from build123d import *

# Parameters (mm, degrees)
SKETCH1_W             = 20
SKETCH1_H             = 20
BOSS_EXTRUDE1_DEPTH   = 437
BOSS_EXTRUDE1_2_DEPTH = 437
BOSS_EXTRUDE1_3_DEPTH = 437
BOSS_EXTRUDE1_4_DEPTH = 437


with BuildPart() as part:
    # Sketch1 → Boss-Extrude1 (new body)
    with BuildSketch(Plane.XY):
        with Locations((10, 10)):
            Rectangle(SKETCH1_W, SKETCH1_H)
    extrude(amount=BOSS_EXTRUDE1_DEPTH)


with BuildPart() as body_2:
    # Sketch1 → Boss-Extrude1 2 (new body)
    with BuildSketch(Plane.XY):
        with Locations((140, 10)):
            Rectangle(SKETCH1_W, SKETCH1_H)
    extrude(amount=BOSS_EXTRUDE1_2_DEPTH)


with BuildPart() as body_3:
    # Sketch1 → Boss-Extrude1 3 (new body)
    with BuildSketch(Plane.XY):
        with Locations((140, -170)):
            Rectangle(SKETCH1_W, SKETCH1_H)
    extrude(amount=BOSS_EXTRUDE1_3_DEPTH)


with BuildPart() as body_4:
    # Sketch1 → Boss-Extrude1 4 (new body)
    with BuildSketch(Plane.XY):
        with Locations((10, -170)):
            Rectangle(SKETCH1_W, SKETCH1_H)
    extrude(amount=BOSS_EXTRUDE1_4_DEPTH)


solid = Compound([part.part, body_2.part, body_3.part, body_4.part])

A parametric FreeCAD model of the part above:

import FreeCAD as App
import Part
import Sketcher

V = App.Vector

doc = App.newDocument("Part")
body = doc.addObject("PartDesign::Body", "Body")

# Sketch on XY plane
sketch1 = body.newObject("Sketcher::SketchObject", "Sketch")
sketch1.AttachmentSupport = (doc.getObject("XY_Plane"), [""])
sketch1.MapMode = "FlatFace"
sketch1.addGeometry(Part.LineSegment(V(0, 20, 0), V(0, 0, 0)), False)
sketch1.addGeometry(Part.LineSegment(V(0, 0, 0), V(20, 0, 0)), False)
sketch1.addGeometry(Part.LineSegment(V(20, 0, 0), V(20, 20, 0)), False)
sketch1.addGeometry(Part.LineSegment(V(20, 20, 0), V(0, 20, 0)), False)
sketch1.addConstraint(Sketcher.Constraint("Coincident", 0, 2, 1, 1))
sketch1.addConstraint(Sketcher.Constraint("Coincident", 1, 2, 2, 1))
sketch1.addConstraint(Sketcher.Constraint("Coincident", 2, 2, 3, 1))
sketch1.addConstraint(Sketcher.Constraint("Coincident", 3, 2, 0, 1))
sketch1.addConstraint(Sketcher.Constraint("Vertical", 0))
sketch1.addConstraint(Sketcher.Constraint("Horizontal", 1))
sketch1.addConstraint(Sketcher.Constraint("Vertical", 2))
sketch1.addConstraint(Sketcher.Constraint("Horizontal", 3))
sketch1.addConstraint(Sketcher.Constraint("Coincident", 0, 2, -1, 1))
sketch1.addConstraint(Sketcher.Constraint("Equal", 3, 0))
sketch1.addConstraint(Sketcher.Constraint("DistanceX", 1, 1, 1, 2, 20.0))
pad1 = body.newObject("PartDesign::Pad", "Pad")
pad1.Profile = sketch1
pad1.Length = 437
body2 = doc.addObject("PartDesign::Body", "Body001")

# Sketch on XY plane
sketch2 = body2.newObject("Sketcher::SketchObject", "Sketch001")
sketch2.AttachmentSupport = (doc.getObject("XY_Plane001"), [""])
sketch2.MapMode = "FlatFace"
sketch2.addGeometry(Part.LineSegment(V(130, 20, 0), V(130, 0, 0)), False)
sketch2.addGeometry(Part.LineSegment(V(130, 0, 0), V(150, 0, 0)), False)
sketch2.addGeometry(Part.LineSegment(V(150, 0, 0), V(150, 20, 0)), False)
sketch2.addGeometry(Part.LineSegment(V(150, 20, 0), V(130, 20, 0)), False)
sketch2.addConstraint(Sketcher.Constraint("Coincident", 0, 2, 1, 1))
sketch2.addConstraint(Sketcher.Constraint("Coincident", 1, 2, 2, 1))
sketch2.addConstraint(Sketcher.Constraint("Coincident", 2, 2, 3, 1))
sketch2.addConstraint(Sketcher.Constraint("Coincident", 3, 2, 0, 1))
sketch2.addConstraint(Sketcher.Constraint("Vertical", 0))
sketch2.addConstraint(Sketcher.Constraint("Horizontal", 1))
sketch2.addConstraint(Sketcher.Constraint("Vertical", 2))
sketch2.addConstraint(Sketcher.Constraint("Horizontal", 3))
sketch2.addConstraint(Sketcher.Constraint("PointOnObject", 0, 2, -1))
sketch2.addConstraint(Sketcher.Constraint("Equal", 3, 0))
sketch2.addConstraint(Sketcher.Constraint("DistanceX", 1, 1, 1, 2, 20.0))
sketch2.addConstraint(Sketcher.Constraint("DistanceX", -1, 1, 0, 2, 130.0))
pad2 = body2.newObject("PartDesign::Pad", "Pad001")
pad2.Profile = sketch2
pad2.Length = 437
body3 = doc.addObject("PartDesign::Body", "Body002")

# Sketch on XY plane
sketch3 = body3.newObject("Sketcher::SketchObject", "Sketch002")
sketch3.AttachmentSupport = (doc.getObject("XY_Plane002"), [""])
sketch3.MapMode = "FlatFace"
sketch3.addGeometry(Part.LineSegment(V(130, -160, 0), V(130, -180, 0)), False)
sketch3.addGeometry(Part.LineSegment(V(130, -180, 0), V(150, -180, 0)), False)
sketch3.addGeometry(Part.LineSegment(V(150, -180, 0), V(150, -160, 0)), False)
sketch3.addGeometry(Part.LineSegment(V(150, -160, 0), V(130, -160, 0)), False)
sketch3.addConstraint(Sketcher.Constraint("Coincident", 0, 2, 1, 1))
sketch3.addConstraint(Sketcher.Constraint("Coincident", 1, 2, 2, 1))
sketch3.addConstraint(Sketcher.Constraint("Coincident", 2, 2, 3, 1))
sketch3.addConstraint(Sketcher.Constraint("Coincident", 3, 2, 0, 1))
sketch3.addConstraint(Sketcher.Constraint("Vertical", 0))
sketch3.addConstraint(Sketcher.Constraint("Horizontal", 1))
sketch3.addConstraint(Sketcher.Constraint("Vertical", 2))
sketch3.addConstraint(Sketcher.Constraint("Horizontal", 3))
sketch3.addConstraint(Sketcher.Constraint("Equal", 3, 0))
sketch3.addConstraint(Sketcher.Constraint("DistanceX", 1, 1, 1, 2, 20.0))
sketch3.addConstraint(Sketcher.Constraint("DistanceX", -1, 1, 0, 2, 130.0))
sketch3.addConstraint(Sketcher.Constraint("DistanceY", 0, 2, -1, 1, 180.0))
pad3 = body3.newObject("PartDesign::Pad", "Pad002")
pad3.Profile = sketch3
pad3.Length = 437
body4 = doc.addObject("PartDesign::Body", "Body003")

# Sketch on XY plane
sketch4 = body4.newObject("Sketcher::SketchObject", "Sketch003")
sketch4.AttachmentSupport = (doc.getObject("XY_Plane003"), [""])
sketch4.MapMode = "FlatFace"
sketch4.addGeometry(Part.LineSegment(V(0, -160, 0), V(0, -180, 0)), False)
sketch4.addGeometry(Part.LineSegment(V(0, -180, 0), V(20, -180, 0)), False)
sketch4.addGeometry(Part.LineSegment(V(20, -180, 0), V(20, -160, 0)), False)
sketch4.addGeometry(Part.LineSegment(V(20, -160, 0), V(0, -160, 0)), False)
sketch4.addConstraint(Sketcher.Constraint("Coincident", 0, 2, 1, 1))
sketch4.addConstraint(Sketcher.Constraint("Coincident", 1, 2, 2, 1))
sketch4.addConstraint(Sketcher.Constraint("Coincident", 2, 2, 3, 1))
sketch4.addConstraint(Sketcher.Constraint("Coincident", 3, 2, 0, 1))
sketch4.addConstraint(Sketcher.Constraint("Vertical", 0))
sketch4.addConstraint(Sketcher.Constraint("Horizontal", 1))
sketch4.addConstraint(Sketcher.Constraint("Vertical", 2))
sketch4.addConstraint(Sketcher.Constraint("Horizontal", 3))
sketch4.addConstraint(Sketcher.Constraint("PointOnObject", 0, 2, -2))
sketch4.addConstraint(Sketcher.Constraint("Equal", 3, 0))
sketch4.addConstraint(Sketcher.Constraint("DistanceX", 1, 1, 1, 2, 20.0))
sketch4.addConstraint(Sketcher.Constraint("DistanceY", 0, 2, -1, 1, 180.0))
pad4 = body4.newObject("PartDesign::Pad", "Pad003")
pad4.Profile = sketch4
pad4.Length = 437

doc.recompute()
